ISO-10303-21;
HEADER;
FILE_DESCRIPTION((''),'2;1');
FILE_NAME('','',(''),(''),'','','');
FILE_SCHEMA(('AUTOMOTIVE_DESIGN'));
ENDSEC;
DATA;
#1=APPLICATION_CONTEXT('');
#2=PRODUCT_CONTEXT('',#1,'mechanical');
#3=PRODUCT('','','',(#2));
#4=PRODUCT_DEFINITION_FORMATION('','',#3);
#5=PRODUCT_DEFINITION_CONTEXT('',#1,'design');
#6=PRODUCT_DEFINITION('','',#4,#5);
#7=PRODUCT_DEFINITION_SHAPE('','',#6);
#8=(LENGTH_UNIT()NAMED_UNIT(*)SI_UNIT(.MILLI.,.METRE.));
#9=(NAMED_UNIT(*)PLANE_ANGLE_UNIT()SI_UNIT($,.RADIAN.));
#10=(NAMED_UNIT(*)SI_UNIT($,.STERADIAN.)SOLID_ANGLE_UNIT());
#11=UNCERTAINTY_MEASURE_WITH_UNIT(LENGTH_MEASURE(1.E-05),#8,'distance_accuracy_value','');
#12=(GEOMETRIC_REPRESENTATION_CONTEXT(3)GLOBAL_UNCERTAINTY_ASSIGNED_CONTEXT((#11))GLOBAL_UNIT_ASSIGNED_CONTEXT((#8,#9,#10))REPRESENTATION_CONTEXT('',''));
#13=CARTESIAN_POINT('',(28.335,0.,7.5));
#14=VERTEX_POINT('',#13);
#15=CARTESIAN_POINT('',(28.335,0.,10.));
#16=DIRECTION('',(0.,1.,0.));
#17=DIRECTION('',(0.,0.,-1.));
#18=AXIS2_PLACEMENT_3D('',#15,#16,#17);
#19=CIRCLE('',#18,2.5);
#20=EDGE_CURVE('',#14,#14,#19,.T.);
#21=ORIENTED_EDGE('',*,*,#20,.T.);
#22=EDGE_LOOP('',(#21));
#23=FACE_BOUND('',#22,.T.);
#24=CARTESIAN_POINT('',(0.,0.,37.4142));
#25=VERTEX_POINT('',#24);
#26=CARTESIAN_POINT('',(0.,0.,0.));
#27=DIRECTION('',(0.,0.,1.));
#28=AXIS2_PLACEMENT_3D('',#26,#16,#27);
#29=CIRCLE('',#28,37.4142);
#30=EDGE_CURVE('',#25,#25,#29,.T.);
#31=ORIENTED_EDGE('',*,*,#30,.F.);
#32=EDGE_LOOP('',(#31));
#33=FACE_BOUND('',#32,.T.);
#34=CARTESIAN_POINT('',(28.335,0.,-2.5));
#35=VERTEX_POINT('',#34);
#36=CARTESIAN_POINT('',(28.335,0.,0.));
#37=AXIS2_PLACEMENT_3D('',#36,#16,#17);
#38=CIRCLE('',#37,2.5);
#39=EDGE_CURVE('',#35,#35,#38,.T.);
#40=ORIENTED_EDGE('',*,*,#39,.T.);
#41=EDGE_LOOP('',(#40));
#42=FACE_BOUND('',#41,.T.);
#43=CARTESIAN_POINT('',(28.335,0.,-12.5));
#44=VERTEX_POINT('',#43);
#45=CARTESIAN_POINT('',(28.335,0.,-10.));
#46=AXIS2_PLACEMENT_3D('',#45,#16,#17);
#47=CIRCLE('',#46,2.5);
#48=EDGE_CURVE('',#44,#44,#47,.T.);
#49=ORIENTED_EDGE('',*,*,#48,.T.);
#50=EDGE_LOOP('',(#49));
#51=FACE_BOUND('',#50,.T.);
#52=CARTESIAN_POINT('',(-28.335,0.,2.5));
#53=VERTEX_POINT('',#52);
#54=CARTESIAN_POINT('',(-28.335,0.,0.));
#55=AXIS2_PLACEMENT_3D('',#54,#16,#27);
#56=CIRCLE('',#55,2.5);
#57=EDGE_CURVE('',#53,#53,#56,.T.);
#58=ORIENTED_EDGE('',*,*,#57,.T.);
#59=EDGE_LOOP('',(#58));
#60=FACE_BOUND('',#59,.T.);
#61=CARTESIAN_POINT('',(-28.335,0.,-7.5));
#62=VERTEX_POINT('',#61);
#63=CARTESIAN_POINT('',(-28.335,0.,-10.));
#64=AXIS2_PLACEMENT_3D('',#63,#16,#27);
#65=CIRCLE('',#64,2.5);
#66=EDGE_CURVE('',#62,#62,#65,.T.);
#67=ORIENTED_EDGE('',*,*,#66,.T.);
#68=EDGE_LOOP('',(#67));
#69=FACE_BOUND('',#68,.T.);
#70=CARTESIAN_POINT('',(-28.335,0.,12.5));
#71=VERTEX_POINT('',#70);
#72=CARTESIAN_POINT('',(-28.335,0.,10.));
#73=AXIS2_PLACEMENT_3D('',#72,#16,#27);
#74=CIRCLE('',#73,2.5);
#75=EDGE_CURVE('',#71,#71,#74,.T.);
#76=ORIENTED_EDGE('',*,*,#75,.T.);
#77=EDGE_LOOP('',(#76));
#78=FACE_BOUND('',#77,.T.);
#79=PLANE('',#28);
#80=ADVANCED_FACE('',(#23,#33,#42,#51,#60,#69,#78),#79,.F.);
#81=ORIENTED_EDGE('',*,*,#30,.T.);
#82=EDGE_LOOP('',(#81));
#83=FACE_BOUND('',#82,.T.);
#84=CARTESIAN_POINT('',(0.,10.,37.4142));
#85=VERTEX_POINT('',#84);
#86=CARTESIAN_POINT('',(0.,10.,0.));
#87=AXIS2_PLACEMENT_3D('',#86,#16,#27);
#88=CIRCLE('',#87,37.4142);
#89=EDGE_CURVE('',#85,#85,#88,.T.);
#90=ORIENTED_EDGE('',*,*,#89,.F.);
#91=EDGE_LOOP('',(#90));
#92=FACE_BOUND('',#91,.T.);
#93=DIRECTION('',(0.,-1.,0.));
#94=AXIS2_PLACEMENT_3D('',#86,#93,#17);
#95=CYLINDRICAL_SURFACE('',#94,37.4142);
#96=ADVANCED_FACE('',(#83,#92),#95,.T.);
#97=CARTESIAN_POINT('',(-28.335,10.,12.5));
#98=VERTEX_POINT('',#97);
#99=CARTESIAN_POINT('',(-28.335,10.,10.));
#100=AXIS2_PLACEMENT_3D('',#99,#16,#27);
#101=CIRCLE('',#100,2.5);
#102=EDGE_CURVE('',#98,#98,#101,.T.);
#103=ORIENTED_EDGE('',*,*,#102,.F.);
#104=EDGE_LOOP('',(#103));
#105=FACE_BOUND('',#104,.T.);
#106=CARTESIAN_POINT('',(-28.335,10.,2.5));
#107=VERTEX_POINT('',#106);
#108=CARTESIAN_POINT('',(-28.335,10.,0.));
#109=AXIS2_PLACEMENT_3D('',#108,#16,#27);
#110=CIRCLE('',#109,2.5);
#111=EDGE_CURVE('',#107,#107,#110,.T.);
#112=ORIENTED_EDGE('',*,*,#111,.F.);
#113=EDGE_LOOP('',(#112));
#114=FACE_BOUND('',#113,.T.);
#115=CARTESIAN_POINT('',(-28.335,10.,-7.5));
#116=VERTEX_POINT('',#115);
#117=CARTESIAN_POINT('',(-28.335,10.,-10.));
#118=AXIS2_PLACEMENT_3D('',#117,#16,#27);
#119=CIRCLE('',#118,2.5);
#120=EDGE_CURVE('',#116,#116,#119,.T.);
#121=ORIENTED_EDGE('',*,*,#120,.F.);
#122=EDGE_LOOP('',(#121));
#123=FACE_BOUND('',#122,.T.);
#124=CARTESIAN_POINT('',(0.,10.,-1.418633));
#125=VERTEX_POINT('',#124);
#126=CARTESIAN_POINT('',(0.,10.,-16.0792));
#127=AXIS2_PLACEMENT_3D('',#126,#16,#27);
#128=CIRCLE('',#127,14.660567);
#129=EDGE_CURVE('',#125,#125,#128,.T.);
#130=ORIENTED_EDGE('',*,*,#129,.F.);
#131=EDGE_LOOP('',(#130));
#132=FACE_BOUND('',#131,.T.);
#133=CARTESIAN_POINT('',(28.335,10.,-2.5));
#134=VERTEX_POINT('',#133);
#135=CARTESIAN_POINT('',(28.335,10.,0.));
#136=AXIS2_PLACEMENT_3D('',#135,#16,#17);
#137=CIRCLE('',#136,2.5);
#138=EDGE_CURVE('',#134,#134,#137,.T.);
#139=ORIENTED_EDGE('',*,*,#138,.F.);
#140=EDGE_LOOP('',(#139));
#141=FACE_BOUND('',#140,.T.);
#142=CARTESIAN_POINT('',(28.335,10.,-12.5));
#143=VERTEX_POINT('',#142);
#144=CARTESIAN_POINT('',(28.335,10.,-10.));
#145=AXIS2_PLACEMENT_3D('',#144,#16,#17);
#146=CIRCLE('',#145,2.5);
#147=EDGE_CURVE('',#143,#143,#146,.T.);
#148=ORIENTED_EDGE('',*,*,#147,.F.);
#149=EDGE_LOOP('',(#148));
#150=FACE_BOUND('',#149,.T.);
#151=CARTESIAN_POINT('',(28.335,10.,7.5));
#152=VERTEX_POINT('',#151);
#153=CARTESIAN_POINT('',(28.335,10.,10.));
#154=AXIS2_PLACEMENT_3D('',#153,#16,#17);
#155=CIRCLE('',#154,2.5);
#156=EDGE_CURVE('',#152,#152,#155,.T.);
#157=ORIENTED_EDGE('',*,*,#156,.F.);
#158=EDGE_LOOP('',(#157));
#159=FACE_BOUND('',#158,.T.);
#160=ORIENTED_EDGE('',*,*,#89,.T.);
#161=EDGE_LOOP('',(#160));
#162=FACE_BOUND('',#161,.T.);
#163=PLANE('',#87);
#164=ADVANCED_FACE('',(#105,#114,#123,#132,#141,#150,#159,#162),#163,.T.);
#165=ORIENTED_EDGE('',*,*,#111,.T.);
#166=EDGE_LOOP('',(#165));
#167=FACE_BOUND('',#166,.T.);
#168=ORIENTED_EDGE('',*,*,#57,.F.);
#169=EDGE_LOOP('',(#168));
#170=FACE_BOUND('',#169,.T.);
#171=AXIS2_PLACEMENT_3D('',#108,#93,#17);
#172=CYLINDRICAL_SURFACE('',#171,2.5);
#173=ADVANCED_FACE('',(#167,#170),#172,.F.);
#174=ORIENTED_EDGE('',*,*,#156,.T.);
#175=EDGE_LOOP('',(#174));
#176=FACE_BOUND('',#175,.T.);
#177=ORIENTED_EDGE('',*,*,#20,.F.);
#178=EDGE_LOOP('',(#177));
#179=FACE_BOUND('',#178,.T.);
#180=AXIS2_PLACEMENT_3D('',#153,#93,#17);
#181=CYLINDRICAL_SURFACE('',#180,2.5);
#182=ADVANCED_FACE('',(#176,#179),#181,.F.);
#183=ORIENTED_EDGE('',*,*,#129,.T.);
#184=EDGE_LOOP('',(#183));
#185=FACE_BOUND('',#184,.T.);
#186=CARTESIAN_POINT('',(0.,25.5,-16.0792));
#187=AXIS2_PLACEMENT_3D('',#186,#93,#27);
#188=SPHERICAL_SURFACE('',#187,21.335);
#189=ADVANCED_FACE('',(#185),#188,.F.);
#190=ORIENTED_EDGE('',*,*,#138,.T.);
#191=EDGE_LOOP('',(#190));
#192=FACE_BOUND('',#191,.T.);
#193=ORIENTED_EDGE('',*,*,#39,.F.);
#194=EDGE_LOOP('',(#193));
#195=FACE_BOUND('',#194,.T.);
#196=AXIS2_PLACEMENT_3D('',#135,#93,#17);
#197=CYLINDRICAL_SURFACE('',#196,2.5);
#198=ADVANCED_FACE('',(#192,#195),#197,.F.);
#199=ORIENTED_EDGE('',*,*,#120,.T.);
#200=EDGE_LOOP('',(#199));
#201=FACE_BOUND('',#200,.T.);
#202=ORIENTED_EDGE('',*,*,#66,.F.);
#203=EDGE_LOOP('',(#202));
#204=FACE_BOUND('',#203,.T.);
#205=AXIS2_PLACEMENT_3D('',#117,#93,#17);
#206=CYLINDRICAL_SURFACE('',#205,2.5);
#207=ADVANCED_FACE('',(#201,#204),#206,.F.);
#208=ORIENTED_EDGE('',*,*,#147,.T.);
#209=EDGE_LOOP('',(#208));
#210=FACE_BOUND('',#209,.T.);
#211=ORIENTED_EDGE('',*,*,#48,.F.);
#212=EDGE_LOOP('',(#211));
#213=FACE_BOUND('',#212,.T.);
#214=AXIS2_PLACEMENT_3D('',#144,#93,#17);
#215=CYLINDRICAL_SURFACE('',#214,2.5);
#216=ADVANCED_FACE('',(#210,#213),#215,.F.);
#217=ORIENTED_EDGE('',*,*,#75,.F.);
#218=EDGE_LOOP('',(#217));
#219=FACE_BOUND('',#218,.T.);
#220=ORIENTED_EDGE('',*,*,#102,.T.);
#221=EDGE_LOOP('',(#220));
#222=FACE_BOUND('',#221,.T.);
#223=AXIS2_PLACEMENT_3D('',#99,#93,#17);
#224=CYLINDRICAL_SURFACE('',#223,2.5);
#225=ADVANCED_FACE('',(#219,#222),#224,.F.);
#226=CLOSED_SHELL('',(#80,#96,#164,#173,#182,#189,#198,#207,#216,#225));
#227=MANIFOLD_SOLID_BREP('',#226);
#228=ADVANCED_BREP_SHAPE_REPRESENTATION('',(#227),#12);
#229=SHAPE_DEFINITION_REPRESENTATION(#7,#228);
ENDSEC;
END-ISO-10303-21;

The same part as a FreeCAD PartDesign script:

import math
import FreeCAD as App
import Part
import Sketcher
from FreeCAD import Vector
Q = App.Units.Quantity

doc = App.newDocument("Part")
body = doc.addObject("PartDesign::Body", "Body")

sketch1 = body.newObject("Sketcher::SketchObject", "Sketch")
sketch1.AttachmentSupport = (doc.getObject("XZ_Plane"), [""])
sketch1.MapMode = "FlatFace"
sketch1.addGeometry([
    Part.Circle(Vector(0, 0, 0), Vector(0, 0, 1), 37.4),
    Part.Circle(Vector(-28.3, -10, 0), Vector(0, 0, 1), 2.5),
    Part.Circle(Vector(-28.3, 0, 0), Vector(0, 0, 1), 2.5),
    Part.Circle(Vector(-28.3, 10, 0), Vector(0, 0, 1), 2.5),
    Part.Circle(Vector(28.3, -10, 0), Vector(0, 0, 1), 2.5),
    Part.Circle(Vector(28.3, 0, 0), Vector(0, 0, 1), 2.5),
    Part.Circle(Vector(28.3, 10, 0), Vector(0, 0, 1), 2.5),
], False)
sketch1.addConstraint([
    Sketcher.Constraint("Coincident", 0, 3, -1, 1),
    Sketcher.Constraint("Equal", 1, 2),
    Sketcher.Constraint("Equal", 2, 3),
    Sketcher.Constraint("Equal", 3, 4),
    Sketcher.Constraint("Equal", 4, 5),
    Sketcher.Constraint("Equal", 5, 6),
    Sketcher.Constraint("Symmetric", 3, 3, 4, 3, -1, 1),
    Sketcher.Constraint("Symmetric", 2, 3, 5, 3, -1, 1),
    Sketcher.Constraint("Symmetric", 1, 3, 6, 3, -1, 1),
    Sketcher.Constraint("Symmetric", 1, 3, 4, 3, -2),
    Sketcher.Constraint("PointOnObject", 2, 3, -1),
    Sketcher.Constraint("Vertical", 1, 3, 2, 3),
    Sketcher.Constraint("Diameter", 1, Q("5 mm")),
    Sketcher.Constraint("DistanceY", 1, 3, -1, 1, Q("10 mm")),
    Sketcher.Constraint("Diameter", 0, Q("74.8284 mm")),
    Sketcher.Constraint("DistanceX", 1, 3, 4, 3, Q("56.67 mm")),
])
pad1 = body.newObject("PartDesign::Pad", "Pad")
pad1.Profile = sketch1
pad1.Length = 10
pad1.Reversed = True

sketch2 = body.newObject("Sketcher::SketchObject", "Sketch001")
sketch2.AttachmentSupport = (doc.getObject("YZ_Plane"), [""])
sketch2.MapMode = "FlatFace"
sketch2.addGeometry([
    Part.LineSegment(Vector(47, -16, 0), Vector(4, -16, 0)),
    Part.ArcOfCircle(Part.Circle(Vector(26, -16, 0), Vector(0, 0, 1), 21), math.radians(180), math.radians(360)),
], False)
sketch2.addGeometry(Part.LineSegment(Vector(4, -16, 0), Vector(47, -16, 0)), True)
sketch2.addConstraint([
    Sketcher.Constraint("Coincident", 0, 1, 1, 2),
    Sketcher.Constraint("Coincident", 1, 1, 0, 2),
    Sketcher.Constraint("Horizontal", 0),
    Sketcher.Constraint("Horizontal", 2),
    Sketcher.Constraint("Coincident", 2, 1, 1, 1),
    Sketcher.Constraint("Horizontal", 1, 3, 0, 1),
    Sketcher.Constraint("Equal", 0, 2),
    Sketcher.Constraint("Radius", 1, Q("21.335 mm")),
    Sketcher.Constraint("DistanceX", -1, 1, 1, 3, Q("25.5 mm")),
    Sketcher.Constraint("DistanceY", 1, 3, -1, 1, Q("16.0792 mm")),
])
groove = body.newObject("PartDesign::Groove", "Groove")
groove.Profile = sketch2
groove.ReferenceAxis = (sketch2, ["Axis0"])
groove.Angle = 360

doc.recompute()
